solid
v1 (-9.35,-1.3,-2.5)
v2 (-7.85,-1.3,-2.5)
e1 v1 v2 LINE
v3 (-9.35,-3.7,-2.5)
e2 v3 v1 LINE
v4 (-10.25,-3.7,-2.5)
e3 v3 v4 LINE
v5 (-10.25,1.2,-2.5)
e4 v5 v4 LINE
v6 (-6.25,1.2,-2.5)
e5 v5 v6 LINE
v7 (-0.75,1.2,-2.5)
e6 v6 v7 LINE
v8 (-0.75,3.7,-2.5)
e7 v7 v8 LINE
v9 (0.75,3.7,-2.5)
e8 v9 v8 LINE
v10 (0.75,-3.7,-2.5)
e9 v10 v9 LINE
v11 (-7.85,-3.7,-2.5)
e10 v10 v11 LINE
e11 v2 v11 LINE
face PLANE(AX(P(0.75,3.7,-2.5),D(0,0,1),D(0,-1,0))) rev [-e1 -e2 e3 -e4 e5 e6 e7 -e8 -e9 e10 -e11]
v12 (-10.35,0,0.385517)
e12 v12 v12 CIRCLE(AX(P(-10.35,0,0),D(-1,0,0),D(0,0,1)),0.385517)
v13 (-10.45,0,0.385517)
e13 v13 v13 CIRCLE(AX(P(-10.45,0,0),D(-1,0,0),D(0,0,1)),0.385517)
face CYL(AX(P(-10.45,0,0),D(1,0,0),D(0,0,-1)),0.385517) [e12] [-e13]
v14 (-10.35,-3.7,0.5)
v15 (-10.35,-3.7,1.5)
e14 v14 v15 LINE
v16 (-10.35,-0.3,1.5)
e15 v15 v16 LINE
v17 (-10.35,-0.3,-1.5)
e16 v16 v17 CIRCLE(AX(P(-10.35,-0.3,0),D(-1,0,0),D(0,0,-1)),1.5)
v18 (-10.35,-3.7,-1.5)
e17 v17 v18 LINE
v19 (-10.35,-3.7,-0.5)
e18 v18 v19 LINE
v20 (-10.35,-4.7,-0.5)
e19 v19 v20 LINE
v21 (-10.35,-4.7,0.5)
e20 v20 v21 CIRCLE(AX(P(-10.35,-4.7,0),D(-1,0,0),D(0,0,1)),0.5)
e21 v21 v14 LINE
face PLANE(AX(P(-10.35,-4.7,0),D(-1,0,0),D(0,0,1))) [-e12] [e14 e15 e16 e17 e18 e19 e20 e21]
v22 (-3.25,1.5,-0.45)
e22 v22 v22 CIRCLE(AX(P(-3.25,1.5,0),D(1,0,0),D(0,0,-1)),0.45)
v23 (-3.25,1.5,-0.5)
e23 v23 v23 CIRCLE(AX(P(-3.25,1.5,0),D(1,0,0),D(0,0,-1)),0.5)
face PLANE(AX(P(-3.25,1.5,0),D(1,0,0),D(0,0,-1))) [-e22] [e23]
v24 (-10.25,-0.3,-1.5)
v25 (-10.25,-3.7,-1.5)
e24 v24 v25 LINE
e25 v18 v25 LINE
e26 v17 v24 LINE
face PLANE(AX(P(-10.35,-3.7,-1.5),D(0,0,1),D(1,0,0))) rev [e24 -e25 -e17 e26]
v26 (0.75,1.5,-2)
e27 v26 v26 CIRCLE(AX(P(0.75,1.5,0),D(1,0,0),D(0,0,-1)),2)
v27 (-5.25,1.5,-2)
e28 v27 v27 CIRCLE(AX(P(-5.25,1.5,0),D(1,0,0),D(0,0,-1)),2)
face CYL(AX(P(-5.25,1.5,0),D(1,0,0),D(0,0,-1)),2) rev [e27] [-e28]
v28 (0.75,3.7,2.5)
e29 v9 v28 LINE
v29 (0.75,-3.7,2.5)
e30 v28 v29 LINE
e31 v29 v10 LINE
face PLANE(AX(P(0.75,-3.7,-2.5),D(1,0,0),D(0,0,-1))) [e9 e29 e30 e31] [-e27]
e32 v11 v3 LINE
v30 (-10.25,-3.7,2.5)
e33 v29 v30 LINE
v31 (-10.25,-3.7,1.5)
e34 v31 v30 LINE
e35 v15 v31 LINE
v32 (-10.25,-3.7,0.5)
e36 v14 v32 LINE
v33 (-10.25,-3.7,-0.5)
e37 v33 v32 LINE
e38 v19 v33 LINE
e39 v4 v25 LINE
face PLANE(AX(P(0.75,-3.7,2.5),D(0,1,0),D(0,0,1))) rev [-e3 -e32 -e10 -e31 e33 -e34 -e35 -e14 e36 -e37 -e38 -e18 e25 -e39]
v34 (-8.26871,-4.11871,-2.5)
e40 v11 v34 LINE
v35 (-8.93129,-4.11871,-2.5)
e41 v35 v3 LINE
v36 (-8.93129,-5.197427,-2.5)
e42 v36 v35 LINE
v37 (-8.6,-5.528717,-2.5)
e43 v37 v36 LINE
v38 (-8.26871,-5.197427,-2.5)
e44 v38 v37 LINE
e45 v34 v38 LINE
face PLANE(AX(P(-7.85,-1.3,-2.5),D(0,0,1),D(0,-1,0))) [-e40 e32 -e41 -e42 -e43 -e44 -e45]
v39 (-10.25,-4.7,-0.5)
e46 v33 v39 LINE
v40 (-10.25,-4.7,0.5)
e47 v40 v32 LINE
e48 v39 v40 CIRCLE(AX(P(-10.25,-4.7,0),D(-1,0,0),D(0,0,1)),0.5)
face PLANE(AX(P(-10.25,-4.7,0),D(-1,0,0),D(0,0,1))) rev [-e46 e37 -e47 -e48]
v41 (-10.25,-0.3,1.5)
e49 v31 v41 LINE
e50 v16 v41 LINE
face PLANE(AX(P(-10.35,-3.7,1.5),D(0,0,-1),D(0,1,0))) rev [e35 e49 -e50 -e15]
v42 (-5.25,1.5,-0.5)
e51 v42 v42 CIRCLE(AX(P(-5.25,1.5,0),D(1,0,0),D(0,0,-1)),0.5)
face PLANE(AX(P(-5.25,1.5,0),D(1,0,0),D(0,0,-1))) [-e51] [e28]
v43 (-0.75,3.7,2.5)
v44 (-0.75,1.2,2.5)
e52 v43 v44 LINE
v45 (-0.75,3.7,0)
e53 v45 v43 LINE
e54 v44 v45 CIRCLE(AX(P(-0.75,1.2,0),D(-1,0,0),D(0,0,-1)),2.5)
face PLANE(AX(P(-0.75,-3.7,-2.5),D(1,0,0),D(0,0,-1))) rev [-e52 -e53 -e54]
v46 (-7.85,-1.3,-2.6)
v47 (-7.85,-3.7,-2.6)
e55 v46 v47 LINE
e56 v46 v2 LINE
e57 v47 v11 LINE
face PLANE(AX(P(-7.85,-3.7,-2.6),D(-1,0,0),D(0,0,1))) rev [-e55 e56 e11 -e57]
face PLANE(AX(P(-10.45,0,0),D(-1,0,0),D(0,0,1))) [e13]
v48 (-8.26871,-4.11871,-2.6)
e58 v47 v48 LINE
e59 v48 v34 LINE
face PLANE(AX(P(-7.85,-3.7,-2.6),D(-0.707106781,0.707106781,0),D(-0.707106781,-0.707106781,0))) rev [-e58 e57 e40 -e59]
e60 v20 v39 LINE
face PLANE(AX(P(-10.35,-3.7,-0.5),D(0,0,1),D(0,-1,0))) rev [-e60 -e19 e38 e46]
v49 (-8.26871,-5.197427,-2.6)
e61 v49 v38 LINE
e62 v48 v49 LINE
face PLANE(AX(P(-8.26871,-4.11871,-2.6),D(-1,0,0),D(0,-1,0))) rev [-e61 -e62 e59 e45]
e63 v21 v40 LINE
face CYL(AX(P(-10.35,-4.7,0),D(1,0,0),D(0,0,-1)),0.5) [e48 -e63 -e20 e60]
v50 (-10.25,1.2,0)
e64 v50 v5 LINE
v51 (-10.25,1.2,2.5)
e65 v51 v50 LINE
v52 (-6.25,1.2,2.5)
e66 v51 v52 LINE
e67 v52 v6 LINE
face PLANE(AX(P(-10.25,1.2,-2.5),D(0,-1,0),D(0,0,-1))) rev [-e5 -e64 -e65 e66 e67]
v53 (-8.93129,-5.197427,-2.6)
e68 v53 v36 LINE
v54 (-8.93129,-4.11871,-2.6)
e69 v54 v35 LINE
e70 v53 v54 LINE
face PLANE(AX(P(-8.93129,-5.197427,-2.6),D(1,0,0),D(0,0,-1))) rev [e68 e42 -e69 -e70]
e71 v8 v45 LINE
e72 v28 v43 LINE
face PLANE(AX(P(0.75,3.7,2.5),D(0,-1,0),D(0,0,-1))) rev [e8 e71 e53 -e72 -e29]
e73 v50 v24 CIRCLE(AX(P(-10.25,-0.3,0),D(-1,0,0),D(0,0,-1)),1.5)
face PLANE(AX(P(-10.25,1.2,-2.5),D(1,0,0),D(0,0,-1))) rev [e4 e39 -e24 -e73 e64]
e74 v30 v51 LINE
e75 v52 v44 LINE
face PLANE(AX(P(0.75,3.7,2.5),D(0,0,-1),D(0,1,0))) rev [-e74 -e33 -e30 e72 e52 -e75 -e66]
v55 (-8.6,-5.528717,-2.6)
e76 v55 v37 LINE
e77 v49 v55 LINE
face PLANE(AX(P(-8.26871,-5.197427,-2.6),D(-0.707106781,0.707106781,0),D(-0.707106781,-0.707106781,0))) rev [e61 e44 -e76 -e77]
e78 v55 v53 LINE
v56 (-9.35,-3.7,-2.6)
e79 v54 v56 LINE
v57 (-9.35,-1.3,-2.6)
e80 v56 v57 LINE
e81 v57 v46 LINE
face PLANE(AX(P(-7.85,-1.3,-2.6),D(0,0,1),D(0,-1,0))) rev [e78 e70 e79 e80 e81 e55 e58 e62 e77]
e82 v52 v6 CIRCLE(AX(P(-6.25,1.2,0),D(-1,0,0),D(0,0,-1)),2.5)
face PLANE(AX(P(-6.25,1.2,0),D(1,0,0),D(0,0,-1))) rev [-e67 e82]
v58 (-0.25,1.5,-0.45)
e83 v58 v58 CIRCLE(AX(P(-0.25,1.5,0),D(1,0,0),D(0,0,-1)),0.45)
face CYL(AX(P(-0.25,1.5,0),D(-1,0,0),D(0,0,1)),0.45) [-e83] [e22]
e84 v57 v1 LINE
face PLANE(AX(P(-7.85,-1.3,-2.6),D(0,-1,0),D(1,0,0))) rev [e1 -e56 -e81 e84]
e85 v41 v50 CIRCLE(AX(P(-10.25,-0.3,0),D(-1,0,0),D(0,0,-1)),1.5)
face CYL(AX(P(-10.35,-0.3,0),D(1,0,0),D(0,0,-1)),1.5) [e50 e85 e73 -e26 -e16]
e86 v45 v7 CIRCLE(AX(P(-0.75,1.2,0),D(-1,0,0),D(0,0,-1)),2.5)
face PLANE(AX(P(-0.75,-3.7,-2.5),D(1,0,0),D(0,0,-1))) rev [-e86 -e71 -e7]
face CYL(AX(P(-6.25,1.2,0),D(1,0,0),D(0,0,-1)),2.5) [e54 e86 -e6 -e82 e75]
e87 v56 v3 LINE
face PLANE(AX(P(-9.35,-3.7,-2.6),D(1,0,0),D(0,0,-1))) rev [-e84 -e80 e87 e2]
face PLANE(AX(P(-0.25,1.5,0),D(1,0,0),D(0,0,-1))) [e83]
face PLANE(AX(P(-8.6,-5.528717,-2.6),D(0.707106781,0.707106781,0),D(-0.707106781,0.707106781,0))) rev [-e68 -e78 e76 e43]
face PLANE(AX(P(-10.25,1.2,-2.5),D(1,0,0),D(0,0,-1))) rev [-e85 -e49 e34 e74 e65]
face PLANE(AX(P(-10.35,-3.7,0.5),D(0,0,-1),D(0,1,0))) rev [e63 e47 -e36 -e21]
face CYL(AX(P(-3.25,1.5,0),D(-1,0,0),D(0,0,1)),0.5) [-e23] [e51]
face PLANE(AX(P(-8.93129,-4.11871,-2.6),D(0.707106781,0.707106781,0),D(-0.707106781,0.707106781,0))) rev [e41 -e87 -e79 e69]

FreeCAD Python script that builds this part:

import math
import FreeCAD as App
import Part
import Sketcher
Q = App.Units.Quantity


def add_polygon(sketch, points):
    """Adds a closed chain of lines whose ends are joined by coincident constraints."""
    first, n = sketch.GeometryCount, len(points)
    for a, b in zip(points, points[1:] + points[:1]):
        sketch.addGeometry(Part.LineSegment(App.Vector(*a, 0), App.Vector(*b, 0)), False)
    for i in range(n):
        sketch.addConstraint(Sketcher.Constraint("Coincident", first + i, 2, first + (i + 1) % n, 1))

doc = App.newDocument("Part")
params = doc.addObject("Spreadsheet::Sheet", "Params")
for row, (alias, value) in enumerate([
    ("sketch1_height", "5 mm"),
    ("sketch1_width", "7.4 mm"),
    ("pad1_length", "1.5 mm"),
    ("sketch2_radius", "2.5 mm"),
    ("sketch2_width", "4.9 mm"),
    ("pad2_length", "5.5 mm"),
    ("sketch3_height", "5 mm"),
    ("sketch3_width", "4.9 mm"),
    ("pad3_length", "4 mm"),
    ("sketch4_diameter", "4 mm"),
    ("pocket1_length", "6 mm"),
    ("sketch5_diameter", "1 mm"),
    ("pad4_length", "2 mm"),
    ("sketch6_diameter", "0.9 mm"),
    ("pad5_length", "3 mm"),
    ("sketch7_radius", "0.5 mm"),
    ("sketch7_radius2", "1.5 mm"),
    ("sketch7_width", "3.4 mm"),
    ("pad6_length", "0.1 mm"),
    ("pad7_length", "0.1 mm"),
    ("sketch9_width", "1.5 mm"),
    ("sketch9_height", "2.4 mm"),
    ("pad8_length", "0.1 mm"),
], start=1):
    params.set(f"A{row}", alias)
    params.set(f"B{row}", "=" + value)
    params.setAlias(f"B{row}", alias)

body = doc.addObject("PartDesign::Body", "Body")

sketch1 = doc.addObject("Sketcher::SketchObject", "Sketch")
body.addObject(sketch1)
sketch1.AttachmentSupport = (doc.YZ_Plane, [""])
sketch1.MapMode = "FlatFace"
add_polygon(sketch1, [(3.7, 2.5), (-3.7, 2.5), (-3.7, -2.5), (3.7, -2.5)])
sketch1.addConstraint(Sketcher.Constraint("Horizontal", 0))
sketch1.addConstraint(Sketcher.Constraint("Vertical", 1))
sketch1.addConstraint(Sketcher.Constraint("Horizontal", 2))
sketch1.addConstraint(Sketcher.Constraint("Vertical", 3))
sketch1.addConstraint(Sketcher.Constraint("Symmetric", 0, 2, 2, 2, -1, 1))
sketch1.addConstraint(Sketcher.Constraint("DistanceY", 1, 2, 1, 1, Q("5 mm")))
sketch1.addConstraint(Sketcher.Constraint("DistanceX", 0, 2, 0, 1, Q("7.4 mm")))
sketch1.setExpression("Constraints[9]", "Params.sketch1_height")
sketch1.setExpression("Constraints[10]", "Params.sketch1_width")
pad1 = doc.addObject("PartDesign::Pad", "Pad")
body.addObject(pad1)
pad1.Profile = sketch1
pad1.setExpression("Length", "Params.pad1_length")
pad1.Midplane = True

sketch2 = doc.addObject("Sketcher::SketchObject", "Sketch001")
body.addObject(sketch2)
sketch2.AttachmentSupport = (doc.YZ_Plane, [""])
sketch2.MapMode = "FlatFace"
sketch2.AttachmentOffset = App.Placement(App.Vector(0, 0, -0.75), App.Rotation())
sketch2.addGeometry(Part.LineSegment(App.Vector(1.2, -2.5, 0), App.Vector(-3.7, -2.5, 0)), False)
sketch2.addGeometry(Part.LineSegment(App.Vector(-3.7, -2.5, 0), App.Vector(-3.7, 2.5, 0)), False)
sketch2.addGeometry(Part.LineSegment(App.Vector(-3.7, 2.5, 0), App.Vector(1.2, 2.5, 0)), False)
sketch2.addGeometry(Part.ArcOfCircle(Part.Circle(App.Vector(1.2, 0, 0), App.Vector(0, 0, 1), 2.5), math.radians(-90), math.radians(90)), False)
sketch2.addConstraint(Sketcher.Constraint("Coincident", 0, 2, 1, 1))
sketch2.addConstraint(Sketcher.Constraint("Coincident", 1, 2, 2, 1))
sketch2.addConstraint(Sketcher.Constraint("Tangent", 2, 2, 3, 2))
sketch2.addConstraint(Sketcher.Constraint("Tangent", 3, 1, 0, 1))
sketch2.addConstraint(Sketcher.Constraint("Horizontal", 0))
sketch2.addConstraint(Sketcher.Constraint("Vertical", 1))
sketch2.addConstraint(Sketcher.Constraint("Horizontal", 2))
sketch2.addConstraint(Sketcher.Constraint("PointOnObject", 3, 3, -1))
sketch2.addConstraint(Sketcher.Constraint("Radius", 3, Q("2.5 mm")))
sketch2.addConstraint(Sketcher.Constraint("DistanceX", 0, 2, 0, 1, Q("4.9 mm")))
sketch2.addConstraint(Sketcher.Constraint("DistanceX", -1, 1, 3, 3, Q("1.2 mm")))
sketch2.setExpression("Constraints[8]", "Params.sketch2_radius")
sketch2.setExpression("Constraints[9]", "Params.sketch2_width")
pad2 = doc.addObject("PartDesign::Pad", "Pad001")
body.addObject(pad2)
pad2.Profile = sketch2
pad2.setExpression("Length", "Params.pad2_length")
pad2.Reversed = True

sketch3 = doc.addObject("Sketcher::SketchObject", "Sketch002")
body.addObject(sketch3)
sketch3.AttachmentSupport = (doc.YZ_Plane, [""])
sketch3.MapMode = "FlatFace"
sketch3.AttachmentOffset = App.Placement(App.Vector(0, 0, -6.25), App.Rotation())
add_polygon(sketch3, [(1.2, -2.5), (-3.7, -2.5), (-3.7, 2.5), (1.2, 2.5)])
sketch3.addConstraint(Sketcher.Constraint("Horizontal", 0))
sketch3.addConstraint(Sketcher.Constraint("Vertical", 1))
sketch3.addConstraint(Sketcher.Constraint("Horizontal", 2))
sketch3.addConstraint(Sketcher.Constraint("Vertical", 3))
sketch3.addConstraint(Sketcher.Constraint("DistanceY", 1, 1, 1, 2, Q("5 mm")))
sketch3.addConstraint(Sketcher.Constraint("DistanceX", 0, 2, 0, 1, Q("4.9 mm")))
sketch3.addConstraint(Sketcher.Constraint("DistanceX", 0, 2, -1, 1, Q("3.7 mm")))
sketch3.addConstraint(Sketcher.Constraint("DistanceY", 0, 2, -1, 1, Q("2.5 mm")))
sketch3.setExpression("Constraints[8]", "Params.sketch3_height")
sketch3.setExpression("Constraints[9]", "Params.sketch3_width")
pad3 = doc.addObject("PartDesign::Pad", "Pad002")
body.addObject(pad3)
pad3.Profile = sketch3
pad3.setExpression("Length", "Params.pad3_length")
pad3.Reversed = True

sketch4 = doc.addObject("Sketcher::SketchObject", "Sketch003")
body.addObject(sketch4)
sketch4.AttachmentSupport = (doc.YZ_Plane, [""])
sketch4.MapMode = "FlatFace"
sketch4.AttachmentOffset = App.Placement(App.Vector(0, 0, 0.75), App.Rotation())
sketch4.addGeometry(Part.Circle(App.Vector(1.5, 0, 0), App.Vector(0, 0, 1), 2), False)
sketch4.addConstraint(Sketcher.Constraint("PointOnObject", 0, 3, -1))
sketch4.addConstraint(Sketcher.Constraint("Diameter", 0, Q("4 mm")))
sketch4.addConstraint(Sketcher.Constraint("DistanceX", -1, 1, 0, 3, Q("1.5 mm")))
sketch4.setExpression("Constraints[1]", "Params.sketch4_diameter")
pocket1 = doc.addObject("PartDesign::Pocket", "Pocket")
body.addObject(pocket1)
pocket1.Profile = sketch4
pocket1.setExpression("Length", "Params.pocket1_length")

sketch5 = doc.addObject("Sketcher::SketchObject", "Sketch004")
body.addObject(sketch5)
sketch5.AttachmentSupport = (doc.YZ_Plane, [""])
sketch5.MapMode = "FlatFace"
sketch5.AttachmentOffset = App.Placement(App.Vector(0, 0, -5.25), App.Rotation())
sketch5.addGeometry(Part.Circle(App.Vector(1.5, 0, 0), App.Vector(0, 0, 1), 0.5), False)
sketch5.addConstraint(Sketcher.Constraint("PointOnObject", 0, 3, -1))
sketch5.addConstraint(Sketcher.Constraint("Diameter", 0, Q("1 mm")))
sketch5.addConstraint(Sketcher.Constraint("DistanceX", -1, 1, 0, 3, Q("1.5 mm")))
sketch5.setExpression("Constraints[1]", "Params.sketch5_diameter")
pad4 = doc.addObject("PartDesign::Pad", "Pad003")
body.addObject(pad4)
pad4.Profile = sketch5
pad4.setExpression("Length", "Params.pad4_length")

sketch6 = doc.addObject("Sketcher::SketchObject", "Sketch005")
body.addObject(sketch6)
sketch6.AttachmentSupport = (doc.YZ_Plane, [""])
sketch6.MapMode = "FlatFace"
sketch6.AttachmentOffset = App.Placement(App.Vector(0, 0, -3.25), App.Rotation())
sketch6.addGeometry(Part.Circle(App.Vector(1.5, 0, 0), App.Vector(0, 0, 1), 0.45), False)
sketch6.addConstraint(Sketcher.Constraint("PointOnObject", 0, 3, -1))
sketch6.addConstraint(Sketcher.Constraint("Diameter", 0, Q("0.9 mm")))
sketch6.addConstraint(Sketcher.Constraint("DistanceX", -1, 1, 0, 3, Q("1.5 mm")))
sketch6.setExpression("Constraints[1]", "Params.sketch6_diameter")
pad5 = doc.addObject("PartDesign::Pad", "Pad004")
body.addObject(pad5)
pad5.Profile = sketch6
pad5.setExpression("Length", "Params.pad5_length")

sketch7 = doc.addObject("Sketcher::SketchObject", "Sketch006")
body.addObject(sketch7)
sketch7.AttachmentSupport = (doc.YZ_Plane, [""])
sketch7.MapMode = "FlatFace"
sketch7.AttachmentOffset = App.Placement(App.Vector(0, 0, -10.25), App.Rotation())
sketch7.addGeometry(Part.LineSegment(App.Vector(-0.3, -1.5, 0), App.Vector(-3.7, -1.5, 0)), False)
sketch7.addGeometry(Part.LineSegment(App.Vector(-3.7, -1.5, 0), App.Vector(-3.7, -0.5, 0)), False)
sketch7.addGeometry(Part.LineSegment(App.Vector(-3.7, -0.5, 0), App.Vector(-4.7, -0.5, 0)), False)
sketch7.addGeometry(Part.ArcOfCircle(Part.Circle(App.Vector(-4.7, 0, 0), App.Vector(0, 0, 1), 0.5), math.radians(90), math.radians(270)), False)
sketch7.addGeometry(Part.LineSegment(App.Vector(-4.7, 0.5, 0), App.Vector(-3.7, 0.5, 0)), False)
sketch7.addGeometry(Part.LineSegment(App.Vector(-3.7, 0.5, 0), App.Vector(-3.7, 1.5, 0)), False)
sketch7.addGeometry(Part.LineSegment(App.Vector(-3.7, 1.5, 0), App.Vector(-0.3, 1.5, 0)), False)
sketch7.addGeometry(Part.ArcOfCircle(Part.Circle(App.Vector(-0.3, 0, 0), App.Vector(0, 0, 1), 1.5), math.radians(-90), math.radians(90)), False)
sketch7.addConstraint(Sketcher.Constraint("Coincident", 0, 2, 1, 1))
sketch7.addConstraint(Sketcher.Constraint("Coincident", 1, 2, 2, 1))
sketch7.addConstraint(Sketcher.Constraint("Tangent", 2, 2, 3, 2))
sketch7.addConstraint(Sketcher.Constraint("Tangent", 3, 1, 4, 1))
sketch7.addConstraint(Sketcher.Constraint("Coincident", 4, 2, 5, 1))
sketch7.addConstraint(Sketcher.Constraint("Coincident", 5, 2, 6, 1))
sketch7.addConstraint(Sketcher.Constraint("Tangent", 6, 2, 7, 2))
sketch7.addConstraint(Sketcher.Constraint("Tangent", 7, 1, 0, 1))
sketch7.addConstraint(Sketcher.Constraint("Horizontal", 0))
sketch7.addConstraint(Sketcher.Constraint("Vertical", 1))
sketch7.addConstraint(Sketcher.Constraint("Horizontal", 2))
sketch7.addConstraint(Sketcher.Constraint("Horizontal", 4))
sketch7.addConstraint(Sketcher.Constraint("Vertical", 5))
sketch7.addConstraint(Sketcher.Constraint("Horizontal", 6))
sketch7.addConstraint(Sketcher.Constraint("Symmetric", 1, 2, 4, 2, -1))
sketch7.addConstraint(Sketcher.Constraint("PointOnObject", 7, 3, -1))
sketch7.addConstraint(Sketcher.Constraint("Equal", 4, 1))
sketch7.addConstraint(Sketcher.Constraint("Radius", 3, Q("0.5 mm")))
sketch7.addConstraint(Sketcher.Constraint("Radius", 7, Q("1.5 mm")))
sketch7.addConstraint(Sketcher.Constraint("DistanceX", 0, 2, 0, 1, Q("3.4 mm")))
sketch7.addConstraint(Sketcher.Constraint("DistanceX", 3, 3, -1, 1, Q("4.7 mm")))
sketch7.setExpression("Constraints[17]", "Params.sketch7_radius")
sketch7.setExpression("Constraints[18]", "Params.sketch7_radius2")
sketch7.setExpression("Constraints[19]", "Params.sketch7_width")
pad6 = doc.addObject("PartDesign::Pad", "Pad005")
body.addObject(pad6)
pad6.Profile = sketch7
pad6.setExpression("Length", "Params.pad6_length")
pad6.Reversed = True

sketch8 = doc.addObject("Sketcher::SketchObject", "Sketch007")
body.addObject(sketch8)
sketch8.AttachmentSupport = (doc.YZ_Plane, [""])
sketch8.MapMode = "FlatFace"
sketch8.AttachmentOffset = App.Placement(App.Vector(0, 0, -10.35), App.Rotation())
sketch8.addGeometry(Part.Circle(App.Vector(0, 0, 0), App.Vector(0, 0, 1), 0.385517), False)
sketch8.addConstraint(Sketcher.Constraint("Coincident", 0, 3, -1, 1))
sketch8.addConstraint(Sketcher.Constraint("Diameter", 0, Q("0.771033 mm")))
pad7 = doc.addObject("PartDesign::Pad", "Pad006")
body.addObject(pad7)
pad7.Profile = sketch8
pad7.setExpression("Length", "Params.pad7_length")
pad7.Reversed = True

sketch9 = doc.addObject("Sketcher::SketchObject", "Sketch008")
body.addObject(sketch9)
sketch9.AttachmentSupport = (doc.XY_Plane, [""])
sketch9.MapMode = "FlatFace"
sketch9.AttachmentOffset = App.Placement(App.Vector(0, 0, -2.5), App.Rotation())
add_polygon(sketch9, [(-7.85, -3.7), (-8.26871, -4.11871), (-8.26871, -5.197427), (-8.6, -5.528717), (-8.93129, -5.197427), (-8.93129, -4.11871), (-9.35, -3.7), (-9.35, -1.3), (-7.85, -1.3)])
sketch9.addConstraint(Sketcher.Constraint("Vertical", 1))
sketch9.addConstraint(Sketcher.Constraint("Vertical", 4))
sketch9.addConstraint(Sketcher.Constraint("Vertical", 6))
sketch9.addConstraint(Sketcher.Constraint("Horizontal", 7))
sketch9.addConstraint(Sketcher.Constraint("Vertical", 8))
sketch9.addConstraint(Sketcher.Constraint("Parallel", 0, 2))
sketch9.addConstraint(Sketcher.Constraint("Perpendicular", 2, 3))
sketch9.addConstraint(Sketcher.Constraint("Parallel", 3, 5))
sketch9.addConstraint(Sketcher.Constraint("Horizontal", 1, 2, 3, 2))
sketch9.addConstraint(Sketcher.Constraint("Horizontal", 0, 2, 4, 2))
sketch9.addConstraint(Sketcher.Constraint("Horizontal", 5, 2, 8, 2))
sketch9.addConstraint(Sketcher.Constraint("Equal", 2, 3))
sketch9.addConstraint(Sketcher.Constraint("DistanceX", 7, 1, 7, 2, Q("1.5 mm")))
sketch9.addConstraint(Sketcher.Constraint("DistanceY", 6, 1, 6, 2, Q("2.4 mm")))
sketch9.addConstraint(Sketcher.Constraint("DistanceX", 2, 2, -1, 1, Q("8.6 mm")))
sketch9.addConstraint(Sketcher.Constraint("DistanceY", 5, 2, -1, 1, Q("3.7 mm")))
sketch9.addConstraint(Sketcher.Constraint("DistanceY", 1, 2, 1, 1, Q("1.078717 mm")))
sketch9.addConstraint(Sketcher.Constraint("DistanceX", 0, 2, -1, 1, Q("8.26871 mm")))
sketch9.setExpression("Constraints[21]", "Params.sketch9_width")
sketch9.setExpression("Constraints[22]", "Params.sketch9_height")
pad8 = doc.addObject("PartDesign::Pad", "Pad007")
body.addObject(pad8)
pad8.Profile = sketch9
pad8.setExpression("Length", "Params.pad8_length")
pad8.Reversed = True

doc.recompute()
